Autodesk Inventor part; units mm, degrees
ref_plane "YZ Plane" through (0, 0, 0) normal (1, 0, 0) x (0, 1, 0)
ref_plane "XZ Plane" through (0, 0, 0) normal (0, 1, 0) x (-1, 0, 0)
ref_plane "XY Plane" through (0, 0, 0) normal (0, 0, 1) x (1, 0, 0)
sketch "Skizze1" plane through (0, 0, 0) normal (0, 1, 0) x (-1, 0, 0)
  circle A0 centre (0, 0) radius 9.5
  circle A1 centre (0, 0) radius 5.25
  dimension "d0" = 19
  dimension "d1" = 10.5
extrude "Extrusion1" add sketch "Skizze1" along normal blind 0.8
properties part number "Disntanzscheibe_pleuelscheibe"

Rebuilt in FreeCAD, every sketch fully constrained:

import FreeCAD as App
import Part
import Sketcher
from FreeCAD import Vector
Q = App.Units.Quantity

doc = App.newDocument("Part")
body = doc.addObject("PartDesign::Body", "Body")

# Sketch on XZ plane
sketch1 = body.newObject("Sketcher::SketchObject", "Sketch")
sketch1.AttachmentSupport = (doc.getObject("XZ_Plane"), [""])
sketch1.MapMode = "FlatFace"
sketch1.addGeometry([
    Part.Circle(Vector(0, 0, 0), Vector(0, 0, 1), 9.5),
    Part.Circle(Vector(0, 0, 0), Vector(0, 0, 1), 5.25),
], False)
sketch1.addConstraint([
    Sketcher.Constraint("Coincident", 0, 3, -1, 1),
    Sketcher.Constraint("Coincident", 1, 3, -1, 1),
    Sketcher.Constraint("Diameter", 0, Q("19 mm")),
    Sketcher.Constraint("Diameter", 1, Q("10.5 mm")),
])
pad1 = body.newObject("PartDesign::Pad", "Pad")
pad1.Profile = sketch1
pad1.Length = 0.8
pad1.Reversed = True

doc.recompute()
